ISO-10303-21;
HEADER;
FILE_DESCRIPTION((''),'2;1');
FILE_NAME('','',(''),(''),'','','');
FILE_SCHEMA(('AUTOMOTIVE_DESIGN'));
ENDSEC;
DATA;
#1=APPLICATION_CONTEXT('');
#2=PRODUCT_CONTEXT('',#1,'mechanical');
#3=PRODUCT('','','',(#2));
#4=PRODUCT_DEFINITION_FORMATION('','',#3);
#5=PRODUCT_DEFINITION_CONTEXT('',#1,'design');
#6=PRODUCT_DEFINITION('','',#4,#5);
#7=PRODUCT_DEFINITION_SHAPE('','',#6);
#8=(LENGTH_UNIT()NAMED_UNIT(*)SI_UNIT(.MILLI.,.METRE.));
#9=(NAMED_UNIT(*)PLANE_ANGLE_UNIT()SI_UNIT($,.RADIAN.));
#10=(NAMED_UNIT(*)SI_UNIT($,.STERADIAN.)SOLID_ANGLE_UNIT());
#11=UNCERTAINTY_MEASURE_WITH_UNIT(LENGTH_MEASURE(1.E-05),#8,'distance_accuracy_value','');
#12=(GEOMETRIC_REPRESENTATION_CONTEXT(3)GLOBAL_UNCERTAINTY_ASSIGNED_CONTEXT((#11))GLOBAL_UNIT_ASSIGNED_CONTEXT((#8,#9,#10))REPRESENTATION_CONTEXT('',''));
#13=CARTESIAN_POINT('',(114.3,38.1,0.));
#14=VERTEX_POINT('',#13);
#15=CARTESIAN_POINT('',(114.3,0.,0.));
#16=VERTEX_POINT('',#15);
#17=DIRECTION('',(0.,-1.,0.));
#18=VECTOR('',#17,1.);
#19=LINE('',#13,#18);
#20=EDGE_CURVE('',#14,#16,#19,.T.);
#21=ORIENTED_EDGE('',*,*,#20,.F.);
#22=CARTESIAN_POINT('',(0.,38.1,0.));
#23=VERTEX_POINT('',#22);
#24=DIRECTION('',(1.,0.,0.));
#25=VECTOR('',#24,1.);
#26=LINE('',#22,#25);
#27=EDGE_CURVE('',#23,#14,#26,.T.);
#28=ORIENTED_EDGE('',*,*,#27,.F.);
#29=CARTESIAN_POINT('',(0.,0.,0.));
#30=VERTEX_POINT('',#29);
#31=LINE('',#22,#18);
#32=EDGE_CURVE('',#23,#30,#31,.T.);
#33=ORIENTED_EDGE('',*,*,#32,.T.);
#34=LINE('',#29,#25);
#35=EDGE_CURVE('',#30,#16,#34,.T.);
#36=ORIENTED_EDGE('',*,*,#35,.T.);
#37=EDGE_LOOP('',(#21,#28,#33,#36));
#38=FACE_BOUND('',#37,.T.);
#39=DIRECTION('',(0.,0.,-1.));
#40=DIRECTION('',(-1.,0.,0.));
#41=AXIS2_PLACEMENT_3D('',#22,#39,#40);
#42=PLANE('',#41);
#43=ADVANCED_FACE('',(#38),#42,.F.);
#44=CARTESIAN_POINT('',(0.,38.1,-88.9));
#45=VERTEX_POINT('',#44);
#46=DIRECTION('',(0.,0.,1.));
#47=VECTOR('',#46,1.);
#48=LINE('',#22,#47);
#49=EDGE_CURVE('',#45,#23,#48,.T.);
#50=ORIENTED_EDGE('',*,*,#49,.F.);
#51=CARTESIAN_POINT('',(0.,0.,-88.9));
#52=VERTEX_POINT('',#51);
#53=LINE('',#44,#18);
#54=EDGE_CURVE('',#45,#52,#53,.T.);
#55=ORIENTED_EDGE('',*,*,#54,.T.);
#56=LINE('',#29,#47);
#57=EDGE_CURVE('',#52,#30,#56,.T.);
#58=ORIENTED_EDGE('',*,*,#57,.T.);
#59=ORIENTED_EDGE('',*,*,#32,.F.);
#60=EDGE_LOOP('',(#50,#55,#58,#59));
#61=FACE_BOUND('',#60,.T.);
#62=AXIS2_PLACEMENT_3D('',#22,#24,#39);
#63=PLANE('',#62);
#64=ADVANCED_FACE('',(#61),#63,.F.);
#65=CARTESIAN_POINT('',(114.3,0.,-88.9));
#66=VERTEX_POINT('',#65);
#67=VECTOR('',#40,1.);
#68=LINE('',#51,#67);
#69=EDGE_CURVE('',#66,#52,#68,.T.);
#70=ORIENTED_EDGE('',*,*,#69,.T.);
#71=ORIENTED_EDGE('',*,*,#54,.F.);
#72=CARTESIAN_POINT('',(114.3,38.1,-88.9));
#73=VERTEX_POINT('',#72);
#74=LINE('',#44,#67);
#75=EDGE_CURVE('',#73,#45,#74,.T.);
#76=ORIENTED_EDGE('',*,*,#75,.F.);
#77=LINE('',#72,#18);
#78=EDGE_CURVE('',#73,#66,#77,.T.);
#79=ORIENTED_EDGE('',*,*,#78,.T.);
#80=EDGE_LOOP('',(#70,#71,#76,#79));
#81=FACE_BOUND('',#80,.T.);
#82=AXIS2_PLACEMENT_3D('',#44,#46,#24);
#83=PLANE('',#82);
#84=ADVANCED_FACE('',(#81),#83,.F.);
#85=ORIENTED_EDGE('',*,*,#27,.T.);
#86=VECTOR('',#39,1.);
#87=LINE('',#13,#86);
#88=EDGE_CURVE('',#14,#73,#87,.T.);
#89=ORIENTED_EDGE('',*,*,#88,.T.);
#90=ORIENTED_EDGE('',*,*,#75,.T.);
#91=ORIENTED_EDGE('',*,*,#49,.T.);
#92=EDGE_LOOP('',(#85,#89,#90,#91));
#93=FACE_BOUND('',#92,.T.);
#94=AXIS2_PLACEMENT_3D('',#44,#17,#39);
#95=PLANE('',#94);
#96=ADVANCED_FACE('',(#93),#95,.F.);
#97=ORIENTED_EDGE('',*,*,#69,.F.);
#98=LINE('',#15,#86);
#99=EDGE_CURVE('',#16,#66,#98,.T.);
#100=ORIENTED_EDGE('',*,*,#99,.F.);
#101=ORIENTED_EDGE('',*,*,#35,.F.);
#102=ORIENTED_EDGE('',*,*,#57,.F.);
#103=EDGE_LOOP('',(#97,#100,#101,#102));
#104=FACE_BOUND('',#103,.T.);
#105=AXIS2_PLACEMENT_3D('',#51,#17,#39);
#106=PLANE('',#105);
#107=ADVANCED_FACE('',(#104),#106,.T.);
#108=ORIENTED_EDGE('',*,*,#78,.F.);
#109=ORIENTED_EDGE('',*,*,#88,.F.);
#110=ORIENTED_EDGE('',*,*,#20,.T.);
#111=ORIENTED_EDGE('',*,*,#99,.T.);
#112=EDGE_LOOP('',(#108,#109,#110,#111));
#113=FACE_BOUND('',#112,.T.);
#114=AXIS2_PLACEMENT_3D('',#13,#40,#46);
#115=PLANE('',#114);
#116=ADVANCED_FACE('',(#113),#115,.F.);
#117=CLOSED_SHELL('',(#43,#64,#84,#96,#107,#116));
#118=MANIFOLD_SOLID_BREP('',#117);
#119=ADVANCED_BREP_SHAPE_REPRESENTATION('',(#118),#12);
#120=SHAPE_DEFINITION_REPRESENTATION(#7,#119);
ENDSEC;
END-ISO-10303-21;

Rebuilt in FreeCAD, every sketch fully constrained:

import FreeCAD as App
import Part
import Sketcher

V = App.Vector
Q = App.Units.Quantity

doc = App.newDocument("Part")
body = doc.addObject("PartDesign::Body", "Body")

# Sketch on XZ plane
sketch1 = body.newObject("Sketcher::SketchObject", "Sketch")
sketch1.AttachmentSupport = (doc.getObject("XZ_Plane"), [""])
sketch1.MapMode = "FlatFace"
sketch1.addGeometry([
    Part.LineSegment(V(0, -89, 0), V(0, 0, 0)),
    Part.LineSegment(V(0, 0, 0), V(114, 0, 0)),
    Part.LineSegment(V(114, 0, 0), V(114, -89, 0)),
    Part.LineSegment(V(114, -89, 0), V(0, -89, 0)),
], False)
sketch1.addConstraint([
    Sketcher.Constraint("Coincident", 0, 2, 1, 1),
    Sketcher.Constraint("Coincident", 1, 2, 2, 1),
    Sketcher.Constraint("Coincident", 2, 2, 3, 1),
    Sketcher.Constraint("Coincident", 3, 2, 0, 1),
    Sketcher.Constraint("Vertical", 0),
    Sketcher.Constraint("Horizontal", 1),
    Sketcher.Constraint("Vertical", 2),
    Sketcher.Constraint("Horizontal", 3),
    Sketcher.Constraint("Coincident", 0, 2, -1, 1),
    Sketcher.Constraint("DistanceX", 1, 1, 1, 2, Q("4.5 in")),
    Sketcher.Constraint("DistanceY", 0, 1, 0, 2, Q("3.5 in")),
])
pad1 = body.newObject("PartDesign::Pad", "Pad")
pad1.Profile = sketch1
pad1.Length = Q("1.5 in")
pad1.Reversed = True

doc.recompute()
